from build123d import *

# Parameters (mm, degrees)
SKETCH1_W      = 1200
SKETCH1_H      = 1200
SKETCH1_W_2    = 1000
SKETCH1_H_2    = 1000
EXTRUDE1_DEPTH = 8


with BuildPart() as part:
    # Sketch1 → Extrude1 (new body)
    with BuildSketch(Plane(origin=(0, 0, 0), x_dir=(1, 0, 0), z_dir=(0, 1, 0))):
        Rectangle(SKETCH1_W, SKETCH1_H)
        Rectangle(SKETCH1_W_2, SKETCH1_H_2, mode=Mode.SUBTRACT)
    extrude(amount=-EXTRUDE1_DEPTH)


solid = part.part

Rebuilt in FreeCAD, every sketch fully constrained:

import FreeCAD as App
import Part
import Sketcher
from FreeCAD import Vector


def add_polygon(sketch, points):
    """Adds a closed chain of lines whose ends are joined by coincident constraints."""
    first, n = sketch.GeometryCount, len(points)
    for a, b in zip(points, points[1:] + points[:1]):
        sketch.addGeometry(Part.LineSegment(App.Vector(*a, 0), App.Vector(*b, 0)), False)
    for i in range(n):
        sketch.addConstraint(Sketcher.Constraint("Coincident", first + i, 2, first + (i + 1) % n, 1))

doc = App.newDocument("Part")
body = doc.addObject("PartDesign::Body", "Body")

sketch1 = doc.addObject("Sketcher::SketchObject", "Sketch")
body.addObject(sketch1)
sketch1.AttachmentSupport = (doc.XZ_Plane, [""])
sketch1.MapMode = "FlatFace"
add_polygon(sketch1, [(-600, -600), (-600, 600), (600, 600), (600, -600)])
add_polygon(sketch1, [(500, 500), (-500, 500), (-500, -500), (500, -500)])
sketch1.addConstraint(Sketcher.Constraint("Vertical", 0))
sketch1.addConstraint(Sketcher.Constraint("Horizontal", 1))
sketch1.addConstraint(Sketcher.Constraint("Vertical", 2))
sketch1.addConstraint(Sketcher.Constraint("Horizontal", 3))
sketch1.addConstraint(Sketcher.Constraint("Horizontal", 4))
sketch1.addConstraint(Sketcher.Constraint("Vertical", 5))
sketch1.addConstraint(Sketcher.Constraint("Horizontal", 6))
sketch1.addConstraint(Sketcher.Constraint("Vertical", 7))
sketch1.addConstraint(Sketcher.Constraint("Symmetric", 0, 2, 2, 2, -1, 1))
sketch1.addConstraint(Sketcher.Constraint("Symmetric", 4, 2, 6, 2, -1, 1))
sketch1.addConstraint(Sketcher.Constraint("Equal", 3, 0))
sketch1.addConstraint(Sketcher.Constraint("Equal", 6, 5))
sketch1.addConstraint(Sketcher.Constraint("DistanceX", 1, 1, 1, 2, 1200.0))
sketch1.addConstraint(Sketcher.Constraint("DistanceX", 4, 2, 4, 1, 1000.0))
pad1 = doc.addObject("PartDesign::Pad", "Pad")
body.addObject(pad1)
pad1.Profile = sketch1
pad1.Length = 8

doc.recompute()
